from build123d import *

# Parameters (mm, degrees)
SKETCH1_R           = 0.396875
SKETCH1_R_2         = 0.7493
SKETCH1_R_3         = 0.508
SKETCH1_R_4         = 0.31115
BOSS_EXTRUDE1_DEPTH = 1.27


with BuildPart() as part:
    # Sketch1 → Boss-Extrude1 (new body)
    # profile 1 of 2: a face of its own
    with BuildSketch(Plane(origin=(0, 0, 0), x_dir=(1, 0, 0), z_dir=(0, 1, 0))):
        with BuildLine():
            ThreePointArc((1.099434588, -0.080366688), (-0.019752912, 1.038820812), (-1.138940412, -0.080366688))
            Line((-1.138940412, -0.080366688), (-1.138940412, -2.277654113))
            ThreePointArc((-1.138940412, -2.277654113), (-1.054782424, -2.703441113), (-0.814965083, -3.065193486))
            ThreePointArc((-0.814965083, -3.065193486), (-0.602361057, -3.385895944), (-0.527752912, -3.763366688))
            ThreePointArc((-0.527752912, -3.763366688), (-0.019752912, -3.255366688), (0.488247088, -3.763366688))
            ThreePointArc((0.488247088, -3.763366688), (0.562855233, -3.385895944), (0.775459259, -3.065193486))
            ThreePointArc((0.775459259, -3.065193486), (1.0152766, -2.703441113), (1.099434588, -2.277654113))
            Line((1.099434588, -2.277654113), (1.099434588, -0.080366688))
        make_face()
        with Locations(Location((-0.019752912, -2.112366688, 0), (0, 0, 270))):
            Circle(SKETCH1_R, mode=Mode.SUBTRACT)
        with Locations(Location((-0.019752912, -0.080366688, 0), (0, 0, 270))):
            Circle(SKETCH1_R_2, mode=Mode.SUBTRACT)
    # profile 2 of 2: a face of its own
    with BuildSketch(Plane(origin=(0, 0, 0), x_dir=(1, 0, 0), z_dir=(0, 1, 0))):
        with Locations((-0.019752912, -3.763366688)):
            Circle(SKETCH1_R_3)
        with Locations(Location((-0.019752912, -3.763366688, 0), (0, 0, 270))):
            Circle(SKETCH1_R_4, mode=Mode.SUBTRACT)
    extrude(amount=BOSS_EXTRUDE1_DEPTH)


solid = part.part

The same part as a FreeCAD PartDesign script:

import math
import FreeCAD as App
import Part
import Sketcher

V = App.Vector
Q = App.Units.Quantity

doc = App.newDocument("Part")
body = doc.addObject("PartDesign::Body", "Body")

# Sketch on XZ plane
sketch1 = body.newObject("Sketcher::SketchObject", "Sketch")
sketch1.AttachmentSupport = (doc.getObject("XZ_Plane"), [""])
sketch1.MapMode = "FlatFace"
sketch1.addGeometry([
    Part.ArcOfCircle(Part.Circle(V(-0.02, 0.08, 0), V(0, 0, 1), 1.12), math.radians(180), math.radians(360)),  # 0
    Part.LineSegment(V(-1.14, 0.08, 0), V(-1.14, 2.28, 0)),  # 1
    Part.ArcOfCircle(Part.Circle(V(-0.02, 2.28, 0), V(0, 0, 1), 1.12), math.radians(135), math.radians(180)),  # 2
    Part.ArcOfCircle(Part.Circle(V(-1.52, 3.76, 0), V(0, 0, 1), 0.99), math.radians(-45), math.radians(0)),  # 3
    Part.ArcOfCircle(Part.Circle(V(-0.02, 3.76, 0), V(0, 0, 1), 0.51), math.radians(0), math.radians(180)),  # 4
    Part.ArcOfCircle(Part.Circle(V(1.48, 3.76, 0), V(0, 0, 1), 0.99), math.radians(180), math.radians(225)),  # 5
    Part.ArcOfCircle(Part.Circle(V(-0.02, 2.28, 0), V(0, 0, 1), 1.12), math.radians(0), math.radians(45)),  # 6
    Part.LineSegment(V(1.1, 2.28, 0), V(1.1, 0.08, 0)),  # 7
    Part.Circle(V(-0.02, 2.11, 0), V(0, 0, 1), 0.4),  # 8
    Part.Circle(V(-0.02, 0.08, 0), V(0, 0, 1), 0.75),  # 9
    Part.Circle(V(-0.02, 3.76, 0), V(0, 0, 1), 0.31),  # 10
], False)
sketch1.addConstraint([
    Sketcher.Constraint("Tangent", 0, 1, 1, 1),
    Sketcher.Constraint("Tangent", 1, 2, 2, 2),
    Sketcher.Constraint("Tangent", 2, 1, 3, 1),
    Sketcher.Constraint("Tangent", 3, 2, 4, 2),
    Sketcher.Constraint("Tangent", 4, 1, 5, 1),
    Sketcher.Constraint("Tangent", 5, 2, 6, 2),
    Sketcher.Constraint("Tangent", 6, 1, 7, 1),
    Sketcher.Constraint("Tangent", 7, 2, 0, 2),
    Sketcher.Constraint("Vertical", 1),
    Sketcher.Constraint("Vertical", 7),
    Sketcher.Constraint("Coincident", 6, 3, 2, 3),
    Sketcher.Constraint("Coincident", 9, 3, 0, 3),
    Sketcher.Constraint("Coincident", 10, 3, 4, 3),
    Sketcher.Constraint("Equal", 0, 2),
    Sketcher.Constraint("Equal", 3, 5),
    Sketcher.Constraint("Horizontal", 3, 3, 4, 3),
    Sketcher.Constraint("Horizontal", 4, 3, 5, 3),
    Sketcher.Constraint("Vertical", 6, 3, 8, 3),
    Sketcher.Constraint("Radius", 4, Q("0.02 in")),
    Sketcher.Constraint("Diameter", 8, Q("0.03125 in")),
    Sketcher.Constraint("Diameter", 9, Q("0.059 in")),
    Sketcher.Constraint("Diameter", 10, Q("0.0245 in")),
    Sketcher.Constraint("DistanceY", 0, 3, 8, 3, Q("0.08 in")),
    Sketcher.Constraint("DistanceY", 0, 3, 3, 3, Q("0.145 in")),
    Sketcher.Constraint("DistanceX", 3, 3, 1, 2, Q("0.015 in")),
    Sketcher.Constraint("Radius", 0, Q("1.119188 mm")),
    Sketcher.Constraint("DistanceX", 3, 3, -1, 1, Q("1.51994 mm")),
    Sketcher.Constraint("DistanceY", -1, 1, 0, 3, Q("0.080367 mm")),
])
pad1 = body.newObject("PartDesign::Pad", "Pad")
pad1.Profile = sketch1
pad1.Length = Q("0.05 in")
pad1.Reversed = True

doc.recompute()
